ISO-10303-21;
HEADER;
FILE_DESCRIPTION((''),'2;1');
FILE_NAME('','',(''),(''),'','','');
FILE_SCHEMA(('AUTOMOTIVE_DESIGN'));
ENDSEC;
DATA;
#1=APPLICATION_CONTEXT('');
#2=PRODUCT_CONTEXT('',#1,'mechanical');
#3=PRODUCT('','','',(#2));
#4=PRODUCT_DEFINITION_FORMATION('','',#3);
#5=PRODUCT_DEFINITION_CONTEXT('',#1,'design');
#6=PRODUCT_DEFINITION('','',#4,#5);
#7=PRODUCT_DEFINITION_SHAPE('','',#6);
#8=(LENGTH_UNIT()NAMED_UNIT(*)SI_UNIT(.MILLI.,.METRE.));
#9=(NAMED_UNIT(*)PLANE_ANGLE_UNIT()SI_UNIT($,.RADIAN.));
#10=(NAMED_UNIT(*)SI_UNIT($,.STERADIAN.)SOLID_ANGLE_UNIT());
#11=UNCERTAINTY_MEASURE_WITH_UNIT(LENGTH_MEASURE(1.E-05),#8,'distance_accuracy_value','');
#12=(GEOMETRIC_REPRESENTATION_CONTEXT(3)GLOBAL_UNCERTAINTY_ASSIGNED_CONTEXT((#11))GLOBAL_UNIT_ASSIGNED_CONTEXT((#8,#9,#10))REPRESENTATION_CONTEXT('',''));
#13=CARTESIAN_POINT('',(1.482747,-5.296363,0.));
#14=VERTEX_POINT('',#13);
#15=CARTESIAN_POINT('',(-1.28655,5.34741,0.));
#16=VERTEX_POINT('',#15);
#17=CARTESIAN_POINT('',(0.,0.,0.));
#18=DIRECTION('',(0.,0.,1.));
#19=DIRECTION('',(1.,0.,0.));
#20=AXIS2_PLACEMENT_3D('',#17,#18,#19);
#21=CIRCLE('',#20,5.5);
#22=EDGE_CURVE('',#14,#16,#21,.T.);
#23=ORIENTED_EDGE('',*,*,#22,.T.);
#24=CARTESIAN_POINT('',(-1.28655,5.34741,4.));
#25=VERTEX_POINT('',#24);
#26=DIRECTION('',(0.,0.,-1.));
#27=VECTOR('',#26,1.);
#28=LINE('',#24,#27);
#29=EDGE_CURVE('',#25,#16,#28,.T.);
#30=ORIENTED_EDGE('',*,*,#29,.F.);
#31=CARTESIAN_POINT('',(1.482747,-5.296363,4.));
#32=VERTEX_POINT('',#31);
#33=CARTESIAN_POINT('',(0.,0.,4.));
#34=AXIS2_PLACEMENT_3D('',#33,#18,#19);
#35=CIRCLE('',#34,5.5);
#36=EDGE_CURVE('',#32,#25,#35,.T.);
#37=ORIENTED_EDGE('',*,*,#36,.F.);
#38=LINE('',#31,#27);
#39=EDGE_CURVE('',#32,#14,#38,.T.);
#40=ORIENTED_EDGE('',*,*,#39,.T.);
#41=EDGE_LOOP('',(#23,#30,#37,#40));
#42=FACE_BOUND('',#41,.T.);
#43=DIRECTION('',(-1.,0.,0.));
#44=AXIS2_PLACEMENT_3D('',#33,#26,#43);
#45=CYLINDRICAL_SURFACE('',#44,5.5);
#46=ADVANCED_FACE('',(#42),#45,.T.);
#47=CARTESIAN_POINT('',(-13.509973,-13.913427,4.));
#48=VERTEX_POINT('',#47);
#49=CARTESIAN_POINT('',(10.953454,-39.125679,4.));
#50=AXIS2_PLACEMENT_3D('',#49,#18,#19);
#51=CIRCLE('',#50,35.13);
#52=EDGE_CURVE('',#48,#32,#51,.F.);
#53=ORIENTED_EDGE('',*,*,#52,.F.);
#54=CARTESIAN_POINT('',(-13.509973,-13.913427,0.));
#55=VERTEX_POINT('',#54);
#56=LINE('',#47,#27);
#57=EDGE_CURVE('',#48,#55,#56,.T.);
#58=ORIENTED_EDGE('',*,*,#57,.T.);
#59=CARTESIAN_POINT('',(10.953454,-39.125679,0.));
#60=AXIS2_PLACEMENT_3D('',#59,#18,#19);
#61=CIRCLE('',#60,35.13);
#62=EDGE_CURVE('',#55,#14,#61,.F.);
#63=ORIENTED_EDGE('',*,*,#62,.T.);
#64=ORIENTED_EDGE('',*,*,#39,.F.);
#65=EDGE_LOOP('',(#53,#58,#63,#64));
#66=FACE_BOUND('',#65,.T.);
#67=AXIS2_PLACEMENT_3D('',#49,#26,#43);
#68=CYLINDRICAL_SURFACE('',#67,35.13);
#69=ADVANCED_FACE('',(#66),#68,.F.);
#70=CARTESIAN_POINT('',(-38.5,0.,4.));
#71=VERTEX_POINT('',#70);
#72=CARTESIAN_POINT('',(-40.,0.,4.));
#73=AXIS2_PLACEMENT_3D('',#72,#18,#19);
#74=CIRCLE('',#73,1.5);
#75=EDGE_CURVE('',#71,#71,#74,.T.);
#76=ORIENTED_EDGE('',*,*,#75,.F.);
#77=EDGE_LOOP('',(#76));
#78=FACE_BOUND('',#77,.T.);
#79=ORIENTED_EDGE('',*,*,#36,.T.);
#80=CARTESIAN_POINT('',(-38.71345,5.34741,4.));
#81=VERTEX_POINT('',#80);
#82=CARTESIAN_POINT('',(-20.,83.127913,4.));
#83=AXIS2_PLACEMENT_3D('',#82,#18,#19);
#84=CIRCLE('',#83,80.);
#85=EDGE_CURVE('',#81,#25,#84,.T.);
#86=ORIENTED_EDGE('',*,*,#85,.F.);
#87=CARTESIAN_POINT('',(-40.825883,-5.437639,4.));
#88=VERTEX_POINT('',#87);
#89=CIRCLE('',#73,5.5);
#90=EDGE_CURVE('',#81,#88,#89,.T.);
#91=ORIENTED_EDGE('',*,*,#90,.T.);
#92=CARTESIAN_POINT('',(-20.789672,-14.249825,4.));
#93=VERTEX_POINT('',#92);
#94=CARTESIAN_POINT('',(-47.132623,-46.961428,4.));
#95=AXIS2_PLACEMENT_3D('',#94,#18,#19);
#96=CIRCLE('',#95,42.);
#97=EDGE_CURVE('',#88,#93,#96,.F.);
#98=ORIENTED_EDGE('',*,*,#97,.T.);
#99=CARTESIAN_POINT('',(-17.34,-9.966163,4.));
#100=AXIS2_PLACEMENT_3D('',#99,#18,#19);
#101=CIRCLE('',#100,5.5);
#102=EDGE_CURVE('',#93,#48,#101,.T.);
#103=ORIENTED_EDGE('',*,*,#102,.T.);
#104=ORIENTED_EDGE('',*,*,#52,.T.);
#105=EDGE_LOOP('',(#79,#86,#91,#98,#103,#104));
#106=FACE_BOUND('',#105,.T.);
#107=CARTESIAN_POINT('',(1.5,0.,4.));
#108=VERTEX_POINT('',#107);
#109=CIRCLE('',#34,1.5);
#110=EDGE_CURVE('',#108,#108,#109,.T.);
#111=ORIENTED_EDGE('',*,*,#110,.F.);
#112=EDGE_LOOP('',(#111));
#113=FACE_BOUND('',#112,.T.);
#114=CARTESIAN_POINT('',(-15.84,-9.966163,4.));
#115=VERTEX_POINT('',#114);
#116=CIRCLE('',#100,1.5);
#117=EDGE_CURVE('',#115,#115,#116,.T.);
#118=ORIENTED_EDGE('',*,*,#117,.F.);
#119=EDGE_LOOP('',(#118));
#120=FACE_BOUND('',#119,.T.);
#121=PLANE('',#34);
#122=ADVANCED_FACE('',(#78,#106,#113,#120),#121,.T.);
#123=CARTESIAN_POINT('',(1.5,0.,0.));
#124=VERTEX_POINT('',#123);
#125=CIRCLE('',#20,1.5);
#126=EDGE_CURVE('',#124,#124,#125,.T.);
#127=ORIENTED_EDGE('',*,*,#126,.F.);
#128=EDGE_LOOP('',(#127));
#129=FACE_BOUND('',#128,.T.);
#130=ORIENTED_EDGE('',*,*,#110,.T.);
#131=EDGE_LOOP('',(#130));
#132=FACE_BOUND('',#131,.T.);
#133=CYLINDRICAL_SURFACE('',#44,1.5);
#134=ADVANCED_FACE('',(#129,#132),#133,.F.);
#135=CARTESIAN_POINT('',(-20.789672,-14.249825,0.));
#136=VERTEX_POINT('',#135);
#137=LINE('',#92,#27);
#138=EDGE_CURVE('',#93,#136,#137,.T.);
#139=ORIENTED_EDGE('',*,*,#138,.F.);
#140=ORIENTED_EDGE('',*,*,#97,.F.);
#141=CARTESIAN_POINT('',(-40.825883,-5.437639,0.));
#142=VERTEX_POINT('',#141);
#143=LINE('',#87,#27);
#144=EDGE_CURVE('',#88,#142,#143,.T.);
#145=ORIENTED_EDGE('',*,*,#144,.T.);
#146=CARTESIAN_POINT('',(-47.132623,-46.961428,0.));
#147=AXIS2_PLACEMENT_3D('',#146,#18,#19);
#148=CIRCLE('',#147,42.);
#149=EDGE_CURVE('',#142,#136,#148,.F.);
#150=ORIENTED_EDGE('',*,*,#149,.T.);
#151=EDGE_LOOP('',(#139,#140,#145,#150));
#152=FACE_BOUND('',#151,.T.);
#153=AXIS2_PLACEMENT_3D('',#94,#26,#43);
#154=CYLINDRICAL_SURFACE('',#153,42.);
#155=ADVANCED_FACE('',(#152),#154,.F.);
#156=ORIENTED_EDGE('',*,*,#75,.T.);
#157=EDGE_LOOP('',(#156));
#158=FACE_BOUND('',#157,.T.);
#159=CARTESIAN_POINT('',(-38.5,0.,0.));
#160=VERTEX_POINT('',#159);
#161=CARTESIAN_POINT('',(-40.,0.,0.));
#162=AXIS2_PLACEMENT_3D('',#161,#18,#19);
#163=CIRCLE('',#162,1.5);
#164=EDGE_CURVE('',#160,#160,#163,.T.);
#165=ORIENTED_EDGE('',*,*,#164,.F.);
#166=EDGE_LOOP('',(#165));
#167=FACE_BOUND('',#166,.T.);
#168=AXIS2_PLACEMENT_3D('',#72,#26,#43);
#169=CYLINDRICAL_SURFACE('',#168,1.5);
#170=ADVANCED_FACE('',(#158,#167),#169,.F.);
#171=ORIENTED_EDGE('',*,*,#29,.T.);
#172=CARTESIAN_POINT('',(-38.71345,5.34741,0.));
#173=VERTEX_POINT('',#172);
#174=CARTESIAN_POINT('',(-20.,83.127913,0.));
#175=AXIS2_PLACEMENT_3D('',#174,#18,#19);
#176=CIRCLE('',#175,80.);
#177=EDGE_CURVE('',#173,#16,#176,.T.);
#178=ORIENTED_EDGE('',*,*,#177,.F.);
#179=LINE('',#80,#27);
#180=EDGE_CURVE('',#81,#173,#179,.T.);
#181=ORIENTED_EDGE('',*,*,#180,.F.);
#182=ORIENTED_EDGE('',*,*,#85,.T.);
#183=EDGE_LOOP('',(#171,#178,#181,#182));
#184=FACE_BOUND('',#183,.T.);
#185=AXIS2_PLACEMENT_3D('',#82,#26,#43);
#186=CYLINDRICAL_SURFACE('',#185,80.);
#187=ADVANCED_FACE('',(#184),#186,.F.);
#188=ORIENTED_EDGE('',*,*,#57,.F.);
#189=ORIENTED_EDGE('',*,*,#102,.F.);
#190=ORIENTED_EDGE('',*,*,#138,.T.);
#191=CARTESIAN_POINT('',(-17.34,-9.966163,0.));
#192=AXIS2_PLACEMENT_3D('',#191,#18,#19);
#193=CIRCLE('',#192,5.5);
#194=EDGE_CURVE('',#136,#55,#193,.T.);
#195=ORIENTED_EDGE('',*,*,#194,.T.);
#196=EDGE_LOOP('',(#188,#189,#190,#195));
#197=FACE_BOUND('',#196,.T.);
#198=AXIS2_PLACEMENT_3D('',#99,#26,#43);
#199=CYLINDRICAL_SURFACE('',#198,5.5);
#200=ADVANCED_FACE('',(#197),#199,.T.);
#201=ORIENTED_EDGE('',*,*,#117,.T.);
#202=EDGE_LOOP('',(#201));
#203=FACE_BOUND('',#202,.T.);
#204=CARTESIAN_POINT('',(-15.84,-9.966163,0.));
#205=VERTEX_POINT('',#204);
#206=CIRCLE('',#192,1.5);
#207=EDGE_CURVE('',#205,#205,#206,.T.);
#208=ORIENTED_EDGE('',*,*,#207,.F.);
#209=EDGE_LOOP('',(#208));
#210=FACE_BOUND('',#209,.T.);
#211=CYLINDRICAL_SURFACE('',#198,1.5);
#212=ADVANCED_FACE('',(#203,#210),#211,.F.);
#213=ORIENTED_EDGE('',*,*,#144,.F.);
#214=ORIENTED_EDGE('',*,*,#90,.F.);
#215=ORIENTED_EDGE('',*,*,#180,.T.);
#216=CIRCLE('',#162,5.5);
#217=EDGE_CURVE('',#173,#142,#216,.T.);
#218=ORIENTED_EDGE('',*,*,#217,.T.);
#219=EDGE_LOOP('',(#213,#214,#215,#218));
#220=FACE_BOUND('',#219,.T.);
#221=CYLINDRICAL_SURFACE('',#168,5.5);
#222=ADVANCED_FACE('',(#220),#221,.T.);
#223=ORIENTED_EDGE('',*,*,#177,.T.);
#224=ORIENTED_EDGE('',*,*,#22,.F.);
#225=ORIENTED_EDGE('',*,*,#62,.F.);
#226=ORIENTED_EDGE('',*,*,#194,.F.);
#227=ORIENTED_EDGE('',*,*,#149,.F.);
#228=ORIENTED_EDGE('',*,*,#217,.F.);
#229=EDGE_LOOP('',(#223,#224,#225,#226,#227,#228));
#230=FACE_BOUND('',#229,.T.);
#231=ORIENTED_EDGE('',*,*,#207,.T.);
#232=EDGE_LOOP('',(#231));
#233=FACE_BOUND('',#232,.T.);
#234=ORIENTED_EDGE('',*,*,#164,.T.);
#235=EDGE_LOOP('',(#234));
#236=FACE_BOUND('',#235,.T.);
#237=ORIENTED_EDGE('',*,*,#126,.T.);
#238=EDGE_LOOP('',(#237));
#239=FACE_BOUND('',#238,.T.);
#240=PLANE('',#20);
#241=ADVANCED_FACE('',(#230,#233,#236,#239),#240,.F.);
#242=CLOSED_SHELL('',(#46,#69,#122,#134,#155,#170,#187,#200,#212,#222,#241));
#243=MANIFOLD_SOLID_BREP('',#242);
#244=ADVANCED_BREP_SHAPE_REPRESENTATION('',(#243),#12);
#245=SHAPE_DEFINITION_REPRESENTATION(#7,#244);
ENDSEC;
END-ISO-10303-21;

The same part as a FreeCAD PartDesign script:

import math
import FreeCAD as App
import Part
import Sketcher
from FreeCAD import Vector

doc = App.newDocument("Part")
body = doc.addObject("PartDesign::Body", "Body")

# Sketch on XY plane
sketch1 = body.newObject("Sketcher::SketchObject", "Sketch")
sketch1.AttachmentSupport = (doc.getObject("XY_Plane"), [""])
sketch1.MapMode = "FlatFace"
sketch1.addGeometry([
    Part.ArcOfCircle(Part.Circle(Vector(-40, 0, 0), Vector(0, 0, 1), 5.5), math.radians(76), math.radians(261)),  # 0
    Part.ArcOfCircle(Part.Circle(Vector(-47.1, -47, 0), Vector(0, 0, 1), 42), math.radians(51), math.radians(81)),  # 1
    Part.ArcOfCircle(Part.Circle(Vector(-17.3, -10, 0), Vector(0, 0, 1), 5.5), math.radians(-129), math.radians(-46)),  # 2
    Part.ArcOfCircle(Part.Circle(Vector(11, -39.1, 0), Vector(0, 0, 1), 35.1), math.radians(106), math.radians(134)),  # 3
    Part.ArcOfCircle(Part.Circle(Vector(0, 0, 0), Vector(0, 0, 1), 5.5), math.radians(-74), math.radians(104)),  # 4
    Part.ArcOfCircle(Part.Circle(Vector(-20, 83.1, 0), Vector(0, 0, 1), 80), math.radians(-104), math.radians(-76)),  # 5
    Part.Circle(Vector(-17.3, -10, 0), Vector(0, 0, 1), 1.5),  # 6
    Part.Circle(Vector(-40, 0, 0), Vector(0, 0, 1), 1.5),  # 7
    Part.Circle(Vector(0, 0, 0), Vector(0, 0, 1), 1.5),  # 8
], False)
sketch1.addConstraint([
    Sketcher.Constraint("Tangent", 0, 2, 1, 2),
    Sketcher.Constraint("Tangent", 1, 1, 2, 1),
    Sketcher.Constraint("Tangent", 2, 2, 3, 2),
    Sketcher.Constraint("Tangent", 3, 1, 4, 1),
    Sketcher.Constraint("Tangent", 4, 2, 5, 2),
    Sketcher.Constraint("Tangent", 5, 1, 0, 1),
    Sketcher.Constraint("Coincident", 4, 3, -1, 1),
    Sketcher.Constraint("Coincident", 8, 3, -1, 1),
    Sketcher.Constraint("Coincident", 6, 3, 2, 3),
    Sketcher.Constraint("Coincident", 7, 3, 0, 3),
    Sketcher.Constraint("Equal", 0, 2),
    Sketcher.Constraint("Equal", 2, 4),
    Sketcher.Constraint("Equal", 6, 7),
    Sketcher.Constraint("Equal", 7, 8),
    Sketcher.Constraint("PointOnObject", 0, 3, -1),
    Sketcher.Constraint("Diameter", 6, 3.0),
    Sketcher.Constraint("Radius", 1, 42.0),
    Sketcher.Constraint("Radius", 5, 80.0),
    Sketcher.Constraint("Radius", 0, 5.5),
    Sketcher.Constraint("Radius", 3, 35.13),
    Sketcher.Constraint("DistanceX", 0, 3, -1, 1, 40.0),
    Sketcher.Constraint("DistanceX", 2, 3, -1, 1, 17.34),
    Sketcher.Constraint("DistanceX", 1, 1, 2, 2, 7.279699),
])
pad1 = body.newObject("PartDesign::Pad", "Pad")
pad1.Profile = sketch1
pad1.Length = 4

doc.recompute()
